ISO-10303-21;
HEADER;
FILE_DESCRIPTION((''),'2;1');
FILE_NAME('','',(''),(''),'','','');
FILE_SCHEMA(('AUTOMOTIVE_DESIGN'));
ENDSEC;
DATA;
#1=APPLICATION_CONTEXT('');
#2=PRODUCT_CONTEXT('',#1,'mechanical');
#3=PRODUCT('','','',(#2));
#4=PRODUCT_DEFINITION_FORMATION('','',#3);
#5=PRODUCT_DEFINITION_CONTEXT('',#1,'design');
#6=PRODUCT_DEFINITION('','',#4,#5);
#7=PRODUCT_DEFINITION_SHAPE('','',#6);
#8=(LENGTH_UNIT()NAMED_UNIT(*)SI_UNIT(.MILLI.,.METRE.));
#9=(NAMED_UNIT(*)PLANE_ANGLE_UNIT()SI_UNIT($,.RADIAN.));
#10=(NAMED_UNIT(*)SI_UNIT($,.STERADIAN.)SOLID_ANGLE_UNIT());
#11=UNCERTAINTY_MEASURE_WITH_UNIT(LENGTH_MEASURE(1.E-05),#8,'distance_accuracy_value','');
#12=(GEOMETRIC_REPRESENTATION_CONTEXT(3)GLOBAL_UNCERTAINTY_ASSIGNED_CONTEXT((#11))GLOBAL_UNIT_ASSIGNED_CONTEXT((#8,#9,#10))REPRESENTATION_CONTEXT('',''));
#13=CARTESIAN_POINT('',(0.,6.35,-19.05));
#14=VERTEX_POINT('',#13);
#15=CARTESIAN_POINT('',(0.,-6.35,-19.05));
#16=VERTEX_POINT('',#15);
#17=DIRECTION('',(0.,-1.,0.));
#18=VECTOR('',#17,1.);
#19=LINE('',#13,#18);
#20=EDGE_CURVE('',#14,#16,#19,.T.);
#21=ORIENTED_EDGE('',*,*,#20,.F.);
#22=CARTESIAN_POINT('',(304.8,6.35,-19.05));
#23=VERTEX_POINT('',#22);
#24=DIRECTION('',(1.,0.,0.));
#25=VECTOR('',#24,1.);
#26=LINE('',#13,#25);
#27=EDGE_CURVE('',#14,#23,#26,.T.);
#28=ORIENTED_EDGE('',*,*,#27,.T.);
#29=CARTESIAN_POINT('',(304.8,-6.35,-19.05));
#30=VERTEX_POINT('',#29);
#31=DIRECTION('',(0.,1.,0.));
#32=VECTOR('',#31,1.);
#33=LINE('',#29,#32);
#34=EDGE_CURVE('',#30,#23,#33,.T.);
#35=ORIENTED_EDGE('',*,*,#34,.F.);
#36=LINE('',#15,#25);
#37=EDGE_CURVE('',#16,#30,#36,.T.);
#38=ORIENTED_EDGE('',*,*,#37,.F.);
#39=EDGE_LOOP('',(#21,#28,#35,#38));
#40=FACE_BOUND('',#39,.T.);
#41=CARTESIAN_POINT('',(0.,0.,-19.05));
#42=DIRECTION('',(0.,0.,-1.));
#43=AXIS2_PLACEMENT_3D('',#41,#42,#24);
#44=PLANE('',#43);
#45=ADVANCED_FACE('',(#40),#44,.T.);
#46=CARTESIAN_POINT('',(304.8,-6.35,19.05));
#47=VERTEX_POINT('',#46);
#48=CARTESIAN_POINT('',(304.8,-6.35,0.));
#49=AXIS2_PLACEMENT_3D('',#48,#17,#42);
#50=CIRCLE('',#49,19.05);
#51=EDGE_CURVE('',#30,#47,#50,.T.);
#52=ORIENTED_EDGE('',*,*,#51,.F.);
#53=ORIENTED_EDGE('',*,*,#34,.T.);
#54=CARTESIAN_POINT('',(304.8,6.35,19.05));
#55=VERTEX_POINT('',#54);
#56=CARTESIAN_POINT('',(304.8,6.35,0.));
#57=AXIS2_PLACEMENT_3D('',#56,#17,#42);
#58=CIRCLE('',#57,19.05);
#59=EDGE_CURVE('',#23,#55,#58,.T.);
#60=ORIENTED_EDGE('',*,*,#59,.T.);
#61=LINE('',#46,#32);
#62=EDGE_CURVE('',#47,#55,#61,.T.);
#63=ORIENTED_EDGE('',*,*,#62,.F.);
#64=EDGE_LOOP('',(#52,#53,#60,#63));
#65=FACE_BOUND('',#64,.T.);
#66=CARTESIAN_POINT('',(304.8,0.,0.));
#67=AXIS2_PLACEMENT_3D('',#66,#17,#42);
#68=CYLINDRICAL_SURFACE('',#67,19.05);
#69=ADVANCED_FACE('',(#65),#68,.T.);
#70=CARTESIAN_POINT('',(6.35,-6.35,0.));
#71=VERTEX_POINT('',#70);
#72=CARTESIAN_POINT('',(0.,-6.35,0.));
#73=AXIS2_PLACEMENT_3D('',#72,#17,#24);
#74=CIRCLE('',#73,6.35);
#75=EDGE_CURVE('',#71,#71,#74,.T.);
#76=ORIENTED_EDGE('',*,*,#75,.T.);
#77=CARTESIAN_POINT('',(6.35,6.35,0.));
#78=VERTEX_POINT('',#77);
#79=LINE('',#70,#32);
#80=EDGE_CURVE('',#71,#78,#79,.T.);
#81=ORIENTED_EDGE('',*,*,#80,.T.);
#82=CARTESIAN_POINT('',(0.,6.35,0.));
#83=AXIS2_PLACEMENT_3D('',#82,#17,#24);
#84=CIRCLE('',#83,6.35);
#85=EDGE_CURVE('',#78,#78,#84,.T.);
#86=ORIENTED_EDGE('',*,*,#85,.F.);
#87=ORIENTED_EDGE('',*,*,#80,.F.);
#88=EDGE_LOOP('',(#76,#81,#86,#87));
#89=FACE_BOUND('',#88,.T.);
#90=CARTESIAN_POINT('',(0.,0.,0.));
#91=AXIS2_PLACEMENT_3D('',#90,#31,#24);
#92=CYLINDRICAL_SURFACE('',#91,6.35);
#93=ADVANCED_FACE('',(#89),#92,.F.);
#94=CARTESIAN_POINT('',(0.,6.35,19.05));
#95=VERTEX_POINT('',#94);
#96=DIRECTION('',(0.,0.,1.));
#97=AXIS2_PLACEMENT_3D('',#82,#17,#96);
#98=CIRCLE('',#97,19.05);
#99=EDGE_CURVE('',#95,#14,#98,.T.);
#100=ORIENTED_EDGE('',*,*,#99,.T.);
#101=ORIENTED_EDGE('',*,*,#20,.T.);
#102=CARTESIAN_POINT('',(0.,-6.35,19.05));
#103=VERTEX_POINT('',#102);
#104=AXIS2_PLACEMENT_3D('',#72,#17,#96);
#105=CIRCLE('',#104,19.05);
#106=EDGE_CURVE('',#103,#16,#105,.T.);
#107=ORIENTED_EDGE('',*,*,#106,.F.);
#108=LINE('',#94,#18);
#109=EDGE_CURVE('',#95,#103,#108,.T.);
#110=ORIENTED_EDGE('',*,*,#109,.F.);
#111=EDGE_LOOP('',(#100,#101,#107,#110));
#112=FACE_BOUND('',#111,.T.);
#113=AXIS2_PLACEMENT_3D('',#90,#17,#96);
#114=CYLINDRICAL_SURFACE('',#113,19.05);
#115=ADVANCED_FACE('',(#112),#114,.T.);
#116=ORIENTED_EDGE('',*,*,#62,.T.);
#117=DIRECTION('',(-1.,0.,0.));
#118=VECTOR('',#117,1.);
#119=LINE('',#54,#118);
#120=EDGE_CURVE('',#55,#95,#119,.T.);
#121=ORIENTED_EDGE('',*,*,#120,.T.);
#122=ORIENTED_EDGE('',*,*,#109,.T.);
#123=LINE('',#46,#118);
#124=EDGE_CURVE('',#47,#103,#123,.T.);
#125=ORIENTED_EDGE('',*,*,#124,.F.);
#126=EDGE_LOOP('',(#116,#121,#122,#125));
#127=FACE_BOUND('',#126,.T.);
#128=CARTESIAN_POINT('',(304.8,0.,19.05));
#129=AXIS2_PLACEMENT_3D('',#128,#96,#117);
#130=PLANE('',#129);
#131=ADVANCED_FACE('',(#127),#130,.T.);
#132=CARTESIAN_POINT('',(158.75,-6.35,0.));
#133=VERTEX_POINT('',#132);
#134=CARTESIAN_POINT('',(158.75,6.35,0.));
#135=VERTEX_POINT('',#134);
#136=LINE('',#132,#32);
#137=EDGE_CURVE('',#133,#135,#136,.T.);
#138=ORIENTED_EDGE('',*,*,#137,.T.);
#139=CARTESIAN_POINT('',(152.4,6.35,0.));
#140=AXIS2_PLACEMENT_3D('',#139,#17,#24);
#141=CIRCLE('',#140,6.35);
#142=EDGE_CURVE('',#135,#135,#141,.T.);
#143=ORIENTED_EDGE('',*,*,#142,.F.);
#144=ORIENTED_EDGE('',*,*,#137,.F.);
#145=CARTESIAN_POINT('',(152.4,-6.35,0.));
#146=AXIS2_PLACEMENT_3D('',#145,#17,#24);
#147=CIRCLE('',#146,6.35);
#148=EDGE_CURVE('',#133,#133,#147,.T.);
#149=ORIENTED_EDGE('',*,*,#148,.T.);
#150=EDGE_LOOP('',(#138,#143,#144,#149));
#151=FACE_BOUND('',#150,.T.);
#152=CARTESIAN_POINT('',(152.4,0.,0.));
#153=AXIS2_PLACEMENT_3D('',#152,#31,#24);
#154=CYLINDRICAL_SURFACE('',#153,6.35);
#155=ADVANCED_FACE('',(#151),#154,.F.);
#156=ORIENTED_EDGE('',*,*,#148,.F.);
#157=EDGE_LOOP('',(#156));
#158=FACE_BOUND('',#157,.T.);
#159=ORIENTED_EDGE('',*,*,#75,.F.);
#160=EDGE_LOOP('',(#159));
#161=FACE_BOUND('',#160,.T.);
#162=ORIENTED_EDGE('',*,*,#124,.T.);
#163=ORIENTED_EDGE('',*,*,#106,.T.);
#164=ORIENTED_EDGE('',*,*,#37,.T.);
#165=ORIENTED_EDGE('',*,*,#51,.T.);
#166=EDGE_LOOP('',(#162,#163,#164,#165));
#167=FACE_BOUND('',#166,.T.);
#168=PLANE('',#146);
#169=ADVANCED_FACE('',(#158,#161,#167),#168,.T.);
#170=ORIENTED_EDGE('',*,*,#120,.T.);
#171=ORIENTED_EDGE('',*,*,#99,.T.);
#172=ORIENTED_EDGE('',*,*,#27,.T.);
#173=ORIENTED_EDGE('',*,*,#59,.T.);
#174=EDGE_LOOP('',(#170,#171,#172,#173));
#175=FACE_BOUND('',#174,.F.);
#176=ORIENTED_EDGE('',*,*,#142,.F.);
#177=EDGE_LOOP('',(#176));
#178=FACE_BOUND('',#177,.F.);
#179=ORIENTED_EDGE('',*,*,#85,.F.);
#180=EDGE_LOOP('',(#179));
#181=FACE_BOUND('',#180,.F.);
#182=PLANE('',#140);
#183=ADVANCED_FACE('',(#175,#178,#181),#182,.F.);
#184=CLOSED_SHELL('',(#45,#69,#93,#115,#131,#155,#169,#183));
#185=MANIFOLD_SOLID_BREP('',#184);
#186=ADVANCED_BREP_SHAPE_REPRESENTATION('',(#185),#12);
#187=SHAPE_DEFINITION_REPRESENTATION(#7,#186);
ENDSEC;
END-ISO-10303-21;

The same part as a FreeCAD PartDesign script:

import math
import FreeCAD as App
import Part
import Sketcher
Q = App.Units.Quantity

doc = App.newDocument("Part")
body = doc.addObject("PartDesign::Body", "Body")

sketch1 = body.newObject("Sketcher::SketchObject", "Sketch")
sketch1.AttachmentSupport = (doc.getObject("XZ_Plane"), [""])
sketch1.MapMode = "FlatFace"
sketch1.addGeometry([
    Part.LineSegment(App.Vector(305, 19, 0), App.Vector(0, 19, 0)),
    Part.ArcOfCircle(Part.Circle(App.Vector(0, 0, 0), App.Vector(0, 0, 1), 19), math.radians(90), math.radians(270)),
    Part.LineSegment(App.Vector(0, -19, 0), App.Vector(305, -19, 0)),
    Part.ArcOfCircle(Part.Circle(App.Vector(305, 0, 0), App.Vector(0, 0, 1), 19), math.radians(-90), math.radians(90)),
    Part.Circle(App.Vector(0, 0, 0), App.Vector(0, 0, 1), 6),
    Part.Circle(App.Vector(152, 0, 0), App.Vector(0, 0, 1), 6),
], False)
sketch1.addConstraint([
    Sketcher.Constraint("Tangent", 0, 2, 1, 1),
    Sketcher.Constraint("Tangent", 1, 2, 2, 1),
    Sketcher.Constraint("Tangent", 2, 2, 3, 1),
    Sketcher.Constraint("Tangent", 3, 2, 0, 1),
    Sketcher.Constraint("Horizontal", 0),
    Sketcher.Constraint("Horizontal", 2),
    Sketcher.Constraint("Coincident", 1, 3, -1, 1),
    Sketcher.Constraint("Coincident", 4, 3, -1, 1),
    Sketcher.Constraint("Equal", 4, 5),
    Sketcher.Constraint("PointOnObject", 5, 3, -1),
    Sketcher.Constraint("Diameter", 4, Q("0.5 in")),
    Sketcher.Constraint("DistanceX", 0, 2, 0, 1, Q("12 in")),
    Sketcher.Constraint("Radius", 1, Q("0.75 in")),
    Sketcher.Constraint("DistanceX", -1, 1, 5, 3, Q("6 in")),
])
pad1 = body.newObject("PartDesign::Pad", "Pad")
pad1.Profile = sketch1
pad1.Length = Q("0.5 in")
pad1.Midplane = True

doc.recompute()
